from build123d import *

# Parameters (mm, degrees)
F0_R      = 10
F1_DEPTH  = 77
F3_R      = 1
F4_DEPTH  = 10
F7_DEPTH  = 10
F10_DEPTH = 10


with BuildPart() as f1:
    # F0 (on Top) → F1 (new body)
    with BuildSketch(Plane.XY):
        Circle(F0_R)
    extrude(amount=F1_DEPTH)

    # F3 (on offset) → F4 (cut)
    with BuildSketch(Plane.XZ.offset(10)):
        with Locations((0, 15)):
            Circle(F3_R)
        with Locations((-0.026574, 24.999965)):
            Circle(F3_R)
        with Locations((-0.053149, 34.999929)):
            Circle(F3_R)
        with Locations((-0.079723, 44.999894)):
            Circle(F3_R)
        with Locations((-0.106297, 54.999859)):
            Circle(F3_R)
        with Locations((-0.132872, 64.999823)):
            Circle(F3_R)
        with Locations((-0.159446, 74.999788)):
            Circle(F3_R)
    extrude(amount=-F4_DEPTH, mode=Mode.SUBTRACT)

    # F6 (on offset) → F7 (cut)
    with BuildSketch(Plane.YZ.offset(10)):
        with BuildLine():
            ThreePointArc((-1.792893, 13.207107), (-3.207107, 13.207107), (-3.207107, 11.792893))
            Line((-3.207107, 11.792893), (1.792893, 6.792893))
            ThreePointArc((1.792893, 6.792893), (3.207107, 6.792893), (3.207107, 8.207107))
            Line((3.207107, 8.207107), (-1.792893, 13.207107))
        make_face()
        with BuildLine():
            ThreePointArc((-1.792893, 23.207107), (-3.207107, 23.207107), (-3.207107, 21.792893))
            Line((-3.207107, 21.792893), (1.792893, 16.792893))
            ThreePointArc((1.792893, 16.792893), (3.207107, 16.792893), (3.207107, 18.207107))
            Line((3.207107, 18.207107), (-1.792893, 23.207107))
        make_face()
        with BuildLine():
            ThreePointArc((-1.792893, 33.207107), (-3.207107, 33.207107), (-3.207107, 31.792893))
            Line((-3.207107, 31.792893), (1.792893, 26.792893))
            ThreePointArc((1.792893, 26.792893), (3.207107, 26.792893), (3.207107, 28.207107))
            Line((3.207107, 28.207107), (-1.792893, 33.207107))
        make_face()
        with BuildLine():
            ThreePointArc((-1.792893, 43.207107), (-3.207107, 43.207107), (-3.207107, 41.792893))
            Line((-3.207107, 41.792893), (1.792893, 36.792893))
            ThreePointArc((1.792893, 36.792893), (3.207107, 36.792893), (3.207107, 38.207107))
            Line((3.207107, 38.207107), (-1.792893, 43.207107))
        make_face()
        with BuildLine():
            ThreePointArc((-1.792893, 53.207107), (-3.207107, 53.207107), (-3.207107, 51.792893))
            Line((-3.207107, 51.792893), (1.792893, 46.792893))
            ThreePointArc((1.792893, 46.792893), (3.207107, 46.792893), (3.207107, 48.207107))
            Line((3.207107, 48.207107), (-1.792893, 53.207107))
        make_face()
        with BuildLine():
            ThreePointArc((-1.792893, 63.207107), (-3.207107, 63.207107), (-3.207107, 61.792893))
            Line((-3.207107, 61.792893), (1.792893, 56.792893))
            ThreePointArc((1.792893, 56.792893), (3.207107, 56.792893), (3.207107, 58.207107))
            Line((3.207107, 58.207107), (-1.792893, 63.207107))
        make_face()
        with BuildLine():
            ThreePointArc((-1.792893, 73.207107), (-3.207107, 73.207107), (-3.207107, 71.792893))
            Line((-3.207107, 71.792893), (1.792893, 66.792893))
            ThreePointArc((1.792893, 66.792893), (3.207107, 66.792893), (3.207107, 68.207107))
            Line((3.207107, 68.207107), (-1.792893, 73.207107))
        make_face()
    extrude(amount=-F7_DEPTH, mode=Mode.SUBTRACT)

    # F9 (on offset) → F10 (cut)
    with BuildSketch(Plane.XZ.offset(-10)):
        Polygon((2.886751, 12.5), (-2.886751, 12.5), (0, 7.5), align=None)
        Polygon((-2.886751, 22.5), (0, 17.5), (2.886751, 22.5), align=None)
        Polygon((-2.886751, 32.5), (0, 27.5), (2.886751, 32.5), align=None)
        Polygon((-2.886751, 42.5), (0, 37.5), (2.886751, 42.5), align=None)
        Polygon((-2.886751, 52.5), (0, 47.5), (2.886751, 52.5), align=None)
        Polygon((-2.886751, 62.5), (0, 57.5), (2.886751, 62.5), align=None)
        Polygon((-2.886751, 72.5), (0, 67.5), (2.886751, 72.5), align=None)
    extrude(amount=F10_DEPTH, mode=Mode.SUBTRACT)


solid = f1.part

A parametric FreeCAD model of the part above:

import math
import FreeCAD as App
import Part
import Sketcher
Q = App.Units.Quantity


def add_polygon(sketch, points):
    """Adds a closed chain of lines whose ends are joined by coincident constraints."""
    first, n = sketch.GeometryCount, len(points)
    for a, b in zip(points, points[1:] + points[:1]):
        sketch.addGeometry(Part.LineSegment(App.Vector(*a, 0), App.Vector(*b, 0)), False)
    for i in range(n):
        sketch.addConstraint(Sketcher.Constraint("Coincident", first + i, 2, first + (i + 1) % n, 1))

doc = App.newDocument("Part")
body = doc.addObject("PartDesign::Body", "Body")

sketch1 = body.newObject("Sketcher::SketchObject", "Sketch")
sketch1.AttachmentSupport = (doc.getObject("XY_Plane"), [""])
sketch1.MapMode = "FlatFace"
sketch1.addGeometry(Part.Circle(App.Vector(0, 0, 0), App.Vector(0, 0, 1), 10), False)
sketch1.addConstraint([
    Sketcher.Constraint("Coincident", 0, 3, -1, 1),
    Sketcher.Constraint("Diameter", 0, Q("20 mm")),
])
pad1 = body.newObject("PartDesign::Pad", "Pad")
pad1.Profile = sketch1
pad1.Length = 77

sketch2 = body.newObject("Sketcher::SketchObject", "Sketch001")
sketch2.AttachmentSupport = (doc.getObject("XZ_Plane"), [""])
sketch2.MapMode = "FlatFace"
sketch2.AttachmentOffset = App.Placement(App.Vector(0, 0, 10), App.Rotation())
sketch2.addGeometry([
    Part.Circle(App.Vector(0, 15, 0), App.Vector(0, 0, 1), 1),
    Part.Circle(App.Vector(-0.026574, 24.999965, 0), App.Vector(0, 0, 1), 1),
    Part.Circle(App.Vector(-0.053149, 34.999929, 0), App.Vector(0, 0, 1), 1),
    Part.Circle(App.Vector(-0.079723, 44.999894, 0), App.Vector(0, 0, 1), 1),
    Part.Circle(App.Vector(-0.106297, 54.999859, 0), App.Vector(0, 0, 1), 1),
    Part.Circle(App.Vector(-0.132872, 64.999823, 0), App.Vector(0, 0, 1), 1),
    Part.Circle(App.Vector(-0.159446, 74.999788, 0), App.Vector(0, 0, 1), 1),
], False)
sketch2.addConstraint([
    Sketcher.Constraint("Equal", 0, 1),
    Sketcher.Constraint("Equal", 1, 2),
    Sketcher.Constraint("Equal", 2, 3),
    Sketcher.Constraint("Equal", 3, 4),
    Sketcher.Constraint("Equal", 4, 5),
    Sketcher.Constraint("Equal", 5, 6),
    Sketcher.Constraint("PointOnObject", 0, 3, -2),
    Sketcher.Constraint("Diameter", 0, Q("2 mm")),
    Sketcher.Constraint("DistanceY", -1, 1, 0, 3, Q("15 mm")),
    Sketcher.Constraint("DistanceX", 2, 3, -1, 1, Q("0.053149 mm")),
    Sketcher.Constraint("DistanceY", -1, 1, 2, 3, Q("34.999929 mm")),
    Sketcher.Constraint("DistanceY", -1, 1, 4, 3, Q("54.999859 mm")),
    Sketcher.Constraint("DistanceX", 3, 3, 1, 3, Q("0.053149 mm")),
    Sketcher.Constraint("DistanceY", 1, 3, 3, 3, Q("19.999929 mm")),
    Sketcher.Constraint("DistanceX", 5, 3, 3, 3, Q("0.053149 mm")),
    Sketcher.Constraint("DistanceY", 3, 3, 5, 3, Q("19.999929 mm")),
    Sketcher.Constraint("DistanceX", 6, 3, 4, 3, Q("0.053149 mm")),
    Sketcher.Constraint("DistanceY", 4, 3, 6, 3, Q("19.999929 mm")),
    Sketcher.Constraint("DistanceX", 1, 3, -1, 1, Q("0.026574 mm")),
    Sketcher.Constraint("DistanceY", -1, 1, 1, 3, Q("24.999965 mm")),
    Sketcher.Constraint("DistanceX", 4, 3, -1, 1, Q("0.106297 mm")),
])
pocket1 = body.newObject("PartDesign::Pocket", "Pocket")
pocket1.Profile = sketch2
pocket1.Length = 10

sketch3 = body.newObject("Sketcher::SketchObject", "Sketch002")
sketch3.AttachmentSupport = (doc.getObject("YZ_Plane"), [""])
sketch3.MapMode = "FlatFace"
sketch3.AttachmentOffset = App.Placement(App.Vector(0, 0, 10), App.Rotation())
sketch3.addGeometry([
    Part.ArcOfCircle(Part.Circle(App.Vector(-2.5, 12.5, 0), App.Vector(0, 0, 1), 1), math.radians(45), math.radians(225)),
    Part.LineSegment(App.Vector(-3.207107, 11.792893, 0), App.Vector(1.792893, 6.792893, 0)),
    Part.ArcOfCircle(Part.Circle(App.Vector(2.5, 7.5, 0), App.Vector(0, 0, 1), 1), math.radians(-135), math.radians(45)),
    Part.LineSegment(App.Vector(3.207107, 8.207107, 0), App.Vector(-1.792893, 13.207107, 0)),
    Part.ArcOfCircle(Part.Circle(App.Vector(-2.5, 22.5, 0), App.Vector(0, 0, 1), 1), math.radians(45), math.radians(225)),
    Part.LineSegment(App.Vector(-3.207107, 21.792893, 0), App.Vector(1.792893, 16.792893, 0)),
    Part.ArcOfCircle(Part.Circle(App.Vector(2.5, 17.5, 0), App.Vector(0, 0, 1), 1), math.radians(-135), math.radians(45)),
    Part.LineSegment(App.Vector(3.207107, 18.207107, 0), App.Vector(-1.792893, 23.207107, 0)),
    Part.ArcOfCircle(Part.Circle(App.Vector(-2.5, 32.5, 0), App.Vector(0, 0, 1), 1), math.radians(45), math.radians(225)),
    Part.LineSegment(App.Vector(-3.207107, 31.792893, 0), App.Vector(1.792893, 26.792893, 0)),
    Part.ArcOfCircle(Part.Circle(App.Vector(2.5, 27.5, 0), App.Vector(0, 0, 1), 1), math.radians(-135), math.radians(45)),
    Part.LineSegment(App.Vector(3.207107, 28.207107, 0), App.Vector(-1.792893, 33.207107, 0)),
    Part.ArcOfCircle(Part.Circle(App.Vector(-2.5, 42.5, 0), App.Vector(0, 0, 1), 1), math.radians(45), math.radians(225)),
    Part.LineSegment(App.Vector(-3.207107, 41.792893, 0), App.Vector(1.792893, 36.792893, 0)),
    Part.ArcOfCircle(Part.Circle(App.Vector(2.5, 37.5, 0), App.Vector(0, 0, 1), 1), math.radians(-135), math.radians(45)),
    Part.LineSegment(App.Vector(3.207107, 38.207107, 0), App.Vector(-1.792893, 43.207107, 0)),
    Part.ArcOfCircle(Part.Circle(App.Vector(-2.5, 52.5, 0), App.Vector(0, 0, 1), 1), math.radians(45), math.radians(225)),
    Part.LineSegment(App.Vector(-3.207107, 51.792893, 0), App.Vector(1.792893, 46.792893, 0)),
    Part.ArcOfCircle(Part.Circle(App.Vector(2.5, 47.5, 0), App.Vector(0, 0, 1), 1), math.radians(-135), math.radians(45)),
    Part.LineSegment(App.Vector(3.207107, 48.207107, 0), App.Vector(-1.792893, 53.207107, 0)),
    Part.ArcOfCircle(Part.Circle(App.Vector(-2.5, 62.5, 0), App.Vector(0, 0, 1), 1), math.radians(45), math.radians(225)),
    Part.LineSegment(App.Vector(-3.207107, 61.792893, 0), App.Vector(1.792893, 56.792893, 0)),
    Part.ArcOfCircle(Part.Circle(App.Vector(2.5, 57.5, 0), App.Vector(0, 0, 1), 1), math.radians(-135), math.radians(45)),
    Part.LineSegment(App.Vector(3.207107, 58.207107, 0), App.Vector(-1.792893, 63.207107, 0)),
    Part.ArcOfCircle(Part.Circle(App.Vector(-2.5, 72.5, 0), App.Vector(0, 0, 1), 1), math.radians(45), math.radians(225)),
    Part.LineSegment(App.Vector(-3.207107, 71.792893, 0), App.Vector(1.792893, 66.792893, 0)),
    Part.ArcOfCircle(Part.Circle(App.Vector(2.5, 67.5, 0), App.Vector(0, 0, 1), 1), math.radians(-135), math.radians(45)),
    Part.LineSegment(App.Vector(3.207107, 68.207107, 0), App.Vector(-1.792893, 73.207107, 0)),
], False)
sketch3.addConstraint([
    Sketcher.Constraint("Tangent", 0, 2, 1, 1),
    Sketcher.Constraint("Tangent", 1, 2, 2, 1),
    Sketcher.Constraint("Tangent", 2, 2, 3, 1),
    Sketcher.Constraint("Tangent", 3, 2, 0, 1),
    Sketcher.Constraint("Tangent", 4, 2, 5, 1),
    Sketcher.Constraint("Tangent", 5, 2, 6, 1),
    Sketcher.Constraint("Tangent", 6, 2, 7, 1),
    Sketcher.Constraint("Tangent", 7, 2, 4, 1),
    Sketcher.Constraint("Tangent", 8, 2, 9, 1),
    Sketcher.Constraint("Tangent", 9, 2, 10, 1),
    Sketcher.Constraint("Tangent", 10, 2, 11, 1),
    Sketcher.Constraint("Tangent", 11, 2, 8, 1),
    Sketcher.Constraint("Tangent", 12, 2, 13, 1),
    Sketcher.Constraint("Tangent", 13, 2, 14, 1),
    Sketcher.Constraint("Tangent", 14, 2, 15, 1),
    Sketcher.Constraint("Tangent", 15, 2, 12, 1),
    Sketcher.Constraint("Tangent", 16, 2, 17, 1),
    Sketcher.Constraint("Tangent", 17, 2, 18, 1),
    Sketcher.Constraint("Tangent", 18, 2, 19, 1),
    Sketcher.Constraint("Tangent", 19, 2, 16, 1),
    Sketcher.Constraint("Tangent", 20, 2, 21, 1),
    Sketcher.Constraint("Tangent", 21, 2, 22, 1),
    Sketcher.Constraint("Tangent", 22, 2, 23, 1),
    Sketcher.Constraint("Tangent", 23, 2, 20, 1),
    Sketcher.Constraint("Tangent", 24, 2, 25, 1),
    Sketcher.Constraint("Tangent", 25, 2, 26, 1),
    Sketcher.Constraint("Tangent", 26, 2, 27, 1),
    Sketcher.Constraint("Tangent", 27, 2, 24, 1),
    Sketcher.Constraint("Equal", 0, 2),
    Sketcher.Constraint("Equal", 2, 4),
    Sketcher.Constraint("Equal", 4, 6),
    Sketcher.Constraint("Equal", 6, 8),
    Sketcher.Constraint("Equal", 8, 10),
    Sketcher.Constraint("Equal", 10, 12),
    Sketcher.Constraint("Equal", 12, 14),
    Sketcher.Constraint("Equal", 14, 16),
    Sketcher.Constraint("Equal", 16, 18),
    Sketcher.Constraint("Equal", 18, 20),
    Sketcher.Constraint("Equal", 20, 22),
    Sketcher.Constraint("Equal", 22, 24),
    Sketcher.Constraint("Equal", 24, 26),
    Sketcher.Constraint("Parallel", 3, 5),
    Sketcher.Constraint("Parallel", 7, 9),
    Sketcher.Constraint("Parallel", 11, 13),
    Sketcher.Constraint("Parallel", 15, 17),
    Sketcher.Constraint("Parallel", 19, 21),
    Sketcher.Constraint("Parallel", 23, 25),
    Sketcher.Constraint("Vertical", 0, 3, 4, 3),
    Sketcher.Constraint("Vertical", 2, 3, 6, 3),
    Sketcher.Constraint("Vertical", 4, 3, 8, 3),
    Sketcher.Constraint("Vertical", 6, 3, 10, 3),
    Sketcher.Constraint("Vertical", 8, 3, 12, 3),
    Sketcher.Constraint("Vertical", 10, 3, 14, 3),
    Sketcher.Constraint("Vertical", 12, 3, 16, 3),
    Sketcher.Constraint("Vertical", 14, 3, 18, 3),
    Sketcher.Constraint("Vertical", 16, 3, 20, 3),
    Sketcher.Constraint("Vertical", 18, 3, 22, 3),
    Sketcher.Constraint("Vertical", 20, 3, 24, 3),
    Sketcher.Constraint("Vertical", 22, 3, 26, 3),
    Sketcher.Constraint("Radius", 0, Q("1 mm")),
    Sketcher.Constraint("Angle", 1, Q("-45 deg")),
    Sketcher.Constraint("DistanceX", 0, 3, 2, 3, Q("5 mm")),
    Sketcher.Constraint("DistanceY", 0, 3, 4, 3, Q("10 mm")),
    Sketcher.Constraint("DistanceY", 4, 3, 8, 3, Q("10 mm")),
    Sketcher.Constraint("DistanceY", 8, 3, 12, 3, Q("10 mm")),
    Sketcher.Constraint("DistanceY", 12, 3, 16, 3, Q("10 mm")),
    Sketcher.Constraint("DistanceY", 16, 3, 20, 3, Q("10 mm")),
    Sketcher.Constraint("DistanceY", 20, 3, 24, 3, Q("10 mm")),
    Sketcher.Constraint("DistanceX", 0, 3, -1, 1, Q("2.5 mm")),
    Sketcher.Constraint("DistanceY", -1, 1, 0, 3, Q("12.5 mm")),
])
pocket2 = body.newObject("PartDesign::Pocket", "Pocket001")
pocket2.Profile = sketch3
pocket2.Length = 10

sketch4 = body.newObject("Sketcher::SketchObject", "Sketch003")
sketch4.AttachmentSupport = (doc.getObject("XZ_Plane"), [""])
sketch4.MapMode = "FlatFace"
sketch4.AttachmentOffset = App.Placement(App.Vector(0, 0, -10), App.Rotation())
add_polygon(sketch4, [(2.886751, 12.5), (-2.886751, 12.5), (0, 7.5)])
add_polygon(sketch4, [(-2.886751, 22.5), (0, 17.5), (2.886751, 22.5)])
add_polygon(sketch4, [(-2.886751, 32.5), (0, 27.5), (2.886751, 32.5)])
add_polygon(sketch4, [(-2.886751, 42.5), (0, 37.5), (2.886751, 42.5)])
add_polygon(sketch4, [(-2.886751, 52.5), (0, 47.5), (2.886751, 52.5)])
add_polygon(sketch4, [(-2.886751, 62.5), (0, 57.5), (2.886751, 62.5)])
add_polygon(sketch4, [(-2.886751, 72.5), (0, 67.5), (2.886751, 72.5)])
sketch4.addConstraint([
    Sketcher.Constraint("Horizontal", 0),
    Sketcher.Constraint("Horizontal", 5),
    Sketcher.Constraint("Horizontal", 8),
    Sketcher.Constraint("Horizontal", 11),
    Sketcher.Constraint("Horizontal", 14),
    Sketcher.Constraint("Horizontal", 17),
    Sketcher.Constraint("Horizontal", 20),
    Sketcher.Constraint("PointOnObject", 1, 2, -2),
    Sketcher.Constraint("PointOnObject", 3, 2, -2),
    Sketcher.Constraint("PointOnObject", 6, 2, -2),
    Sketcher.Constraint("PointOnObject", 9, 2, -2),
    Sketcher.Constraint("PointOnObject", 12, 2, -2),
    Sketcher.Constraint("PointOnObject", 15, 2, -2),
    Sketcher.Constraint("PointOnObject", 18, 2, -2),
    Sketcher.Constraint("Parallel", 1, 3),
    Sketcher.Constraint("Parallel", 2, 4),
    Sketcher.Constraint("Parallel", 3, 6),
    Sketcher.Constraint("Parallel", 4, 7),
    Sketcher.Constraint("Parallel", 6, 9),
    Sketcher.Constraint("Parallel", 7, 10),
    Sketcher.Constraint("Parallel", 9, 12),
    Sketcher.Constraint("Parallel", 10, 13),
    Sketcher.Constraint("Parallel", 12, 15),
    Sketcher.Constraint("Parallel", 13, 16),
    Sketcher.Constraint("Parallel", 15, 18),
    Sketcher.Constraint("Parallel", 16, 19),
    Sketcher.Constraint("Vertical", 2, 2, 4, 2),
    Sketcher.Constraint("Vertical", 4, 2, 7, 2),
    Sketcher.Constraint("Vertical", 7, 2, 10, 2),
    Sketcher.Constraint("Vertical", 10, 2, 13, 2),
    Sketcher.Constraint("Vertical", 13, 2, 16, 2),
    Sketcher.Constraint("Vertical", 16, 2, 19, 2),
    Sketcher.Constraint("Equal", 1, 2),
    Sketcher.Constraint("Angle", 1, Q("-60.000003 deg")),
    Sketcher.Constraint("DistanceY", 1, 2, 0, 2, Q("5 mm")),
    Sketcher.Constraint("DistanceY", 0, 2, 3, 2, Q("5 mm")),
    Sketcher.Constraint("DistanceY", 4, 2, 6, 2, Q("5 mm")),
    Sketcher.Constraint("DistanceY", 7, 2, 9, 2, Q("5 mm")),
    Sketcher.Constraint("DistanceY", 10, 2, 12, 2, Q("5 mm")),
    Sketcher.Constraint("DistanceY", 13, 2, 15, 2, Q("5 mm")),
    Sketcher.Constraint("DistanceY", 16, 2, 18, 2, Q("5 mm")),
    Sketcher.Constraint("DistanceY", -1, 1, 0, 2, Q("12.5 mm")),
])
pocket3 = body.newObject("PartDesign::Pocket", "Pocket002")
pocket3.Profile = sketch4
pocket3.Length = 10
pocket3.Reversed = True

doc.recompute()
